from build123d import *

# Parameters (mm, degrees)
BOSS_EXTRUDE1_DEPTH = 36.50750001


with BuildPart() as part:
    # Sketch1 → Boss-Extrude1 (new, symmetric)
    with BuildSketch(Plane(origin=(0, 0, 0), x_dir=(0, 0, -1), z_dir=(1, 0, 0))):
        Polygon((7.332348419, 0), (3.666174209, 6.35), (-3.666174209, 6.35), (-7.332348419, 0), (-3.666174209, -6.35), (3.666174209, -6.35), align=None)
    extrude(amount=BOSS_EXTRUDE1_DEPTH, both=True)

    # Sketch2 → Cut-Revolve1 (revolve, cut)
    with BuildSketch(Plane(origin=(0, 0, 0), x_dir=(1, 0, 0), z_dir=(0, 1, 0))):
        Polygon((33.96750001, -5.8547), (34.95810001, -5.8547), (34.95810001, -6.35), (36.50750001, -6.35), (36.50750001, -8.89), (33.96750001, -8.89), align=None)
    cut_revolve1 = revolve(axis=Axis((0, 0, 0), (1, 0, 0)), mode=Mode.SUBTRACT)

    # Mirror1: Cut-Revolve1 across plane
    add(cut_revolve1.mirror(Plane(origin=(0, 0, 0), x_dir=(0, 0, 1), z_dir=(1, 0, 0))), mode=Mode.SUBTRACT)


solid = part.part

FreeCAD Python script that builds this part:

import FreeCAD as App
import Part
import Sketcher
Q = App.Units.Quantity


def add_polygon(sketch, points):
    """Adds a closed chain of lines whose ends are joined by coincident constraints."""
    first, n = sketch.GeometryCount, len(points)
    for a, b in zip(points, points[1:] + points[:1]):
        sketch.addGeometry(Part.LineSegment(App.Vector(*a, 0), App.Vector(*b, 0)), False)
    for i in range(n):
        sketch.addConstraint(Sketcher.Constraint("Coincident", first + i, 2, first + (i + 1) % n, 1))

doc = App.newDocument("Part")
body = doc.addObject("PartDesign::Body", "Body")

# Sketch on YZ plane
sketch1 = body.newObject("Sketcher::SketchObject", "Sketch")
sketch1.AttachmentSupport = (doc.getObject("YZ_Plane"), [""])
sketch1.MapMode = "FlatFace"
add_polygon(sketch1, [(0, -7.332348), (6.35, -3.666174), (6.35, 3.666174), (0, 7.332348), (-6.35, 3.666174), (-6.35, -3.666174)])  # lines 0-5
sketch1.addConstraint([
    Sketcher.Constraint("Vertical", 1),
    Sketcher.Constraint("Vertical", 4),
    Sketcher.Constraint("Symmetric", 0, 2, 3, 2, -1, 1),
    Sketcher.Constraint("Symmetric", 2, 2, 5, 2, -1, 1),
    Sketcher.Constraint("PointOnObject", 2, 2, -2),
    Sketcher.Constraint("Parallel", 2, 5),
    Sketcher.Constraint("Horizontal", 1, 2, 3, 2),
    Sketcher.Constraint("Angle", 0, Q("30 deg")),
    Sketcher.Constraint("DistanceX", 3, 2, 1, 2, Q("0.5 in")),
    Sketcher.Constraint("DistanceY", 1, 1, 1, 2, Q("7.332348 mm")),
])
pad1 = body.newObject("PartDesign::Pad", "Pad")
pad1.Profile = sketch1
pad1.Length = 73.015
pad1.Midplane = True

# Sketch on XZ plane
sketch2 = body.newObject("Sketcher::SketchObject", "Sketch001")
sketch2.AttachmentSupport = (doc.getObject("XZ_Plane"), [""])
sketch2.MapMode = "FlatFace"
add_polygon(sketch2, [(34.9581, 5.8547), (33.9675, 5.8547), (33.9675, 8.89), (36.5075, 8.89), (36.5075, 6.35), (34.9581, 6.35)])  # lines 0-5
sketch2.addConstraint([
    Sketcher.Constraint("Horizontal", 0),
    Sketcher.Constraint("Vertical", 1),
    Sketcher.Constraint("Horizontal", 2),
    Sketcher.Constraint("Vertical", 3),
    Sketcher.Constraint("Horizontal", 4),
    Sketcher.Constraint("Vertical", 5),
    Sketcher.Constraint("Equal", 2, 3),
    Sketcher.Constraint("DistanceX", 2, 1, 2, 2, Q("0.1 in")),
    Sketcher.Constraint("DistanceX", 0, 2, 0, 1, Q("0.039 in")),
    Sketcher.Constraint("DistanceY", -1, 1, 1, 2, Q("0.35 in")),
    Sketcher.Constraint("DistanceY", 1, 1, 1, 2, Q("0.1195 in")),
    Sketcher.Constraint("DistanceX", -1, 1, 0, 2, Q("33.9675 mm")),
])
groove = body.newObject("PartDesign::Groove", "Groove")
groove.Profile = sketch2
groove.ReferenceAxis = (sketch2, ["H_Axis"])
groove.Angle = 360
doc.recompute()

mirrored = body.newObject("PartDesign::Mirrored", "Mirrored")
mirrored.Originals = [groove]
mirrored.MirrorPlane = (doc.getObject("YZ_Plane"), [""])
body.Tip = mirrored

doc.recompute()
